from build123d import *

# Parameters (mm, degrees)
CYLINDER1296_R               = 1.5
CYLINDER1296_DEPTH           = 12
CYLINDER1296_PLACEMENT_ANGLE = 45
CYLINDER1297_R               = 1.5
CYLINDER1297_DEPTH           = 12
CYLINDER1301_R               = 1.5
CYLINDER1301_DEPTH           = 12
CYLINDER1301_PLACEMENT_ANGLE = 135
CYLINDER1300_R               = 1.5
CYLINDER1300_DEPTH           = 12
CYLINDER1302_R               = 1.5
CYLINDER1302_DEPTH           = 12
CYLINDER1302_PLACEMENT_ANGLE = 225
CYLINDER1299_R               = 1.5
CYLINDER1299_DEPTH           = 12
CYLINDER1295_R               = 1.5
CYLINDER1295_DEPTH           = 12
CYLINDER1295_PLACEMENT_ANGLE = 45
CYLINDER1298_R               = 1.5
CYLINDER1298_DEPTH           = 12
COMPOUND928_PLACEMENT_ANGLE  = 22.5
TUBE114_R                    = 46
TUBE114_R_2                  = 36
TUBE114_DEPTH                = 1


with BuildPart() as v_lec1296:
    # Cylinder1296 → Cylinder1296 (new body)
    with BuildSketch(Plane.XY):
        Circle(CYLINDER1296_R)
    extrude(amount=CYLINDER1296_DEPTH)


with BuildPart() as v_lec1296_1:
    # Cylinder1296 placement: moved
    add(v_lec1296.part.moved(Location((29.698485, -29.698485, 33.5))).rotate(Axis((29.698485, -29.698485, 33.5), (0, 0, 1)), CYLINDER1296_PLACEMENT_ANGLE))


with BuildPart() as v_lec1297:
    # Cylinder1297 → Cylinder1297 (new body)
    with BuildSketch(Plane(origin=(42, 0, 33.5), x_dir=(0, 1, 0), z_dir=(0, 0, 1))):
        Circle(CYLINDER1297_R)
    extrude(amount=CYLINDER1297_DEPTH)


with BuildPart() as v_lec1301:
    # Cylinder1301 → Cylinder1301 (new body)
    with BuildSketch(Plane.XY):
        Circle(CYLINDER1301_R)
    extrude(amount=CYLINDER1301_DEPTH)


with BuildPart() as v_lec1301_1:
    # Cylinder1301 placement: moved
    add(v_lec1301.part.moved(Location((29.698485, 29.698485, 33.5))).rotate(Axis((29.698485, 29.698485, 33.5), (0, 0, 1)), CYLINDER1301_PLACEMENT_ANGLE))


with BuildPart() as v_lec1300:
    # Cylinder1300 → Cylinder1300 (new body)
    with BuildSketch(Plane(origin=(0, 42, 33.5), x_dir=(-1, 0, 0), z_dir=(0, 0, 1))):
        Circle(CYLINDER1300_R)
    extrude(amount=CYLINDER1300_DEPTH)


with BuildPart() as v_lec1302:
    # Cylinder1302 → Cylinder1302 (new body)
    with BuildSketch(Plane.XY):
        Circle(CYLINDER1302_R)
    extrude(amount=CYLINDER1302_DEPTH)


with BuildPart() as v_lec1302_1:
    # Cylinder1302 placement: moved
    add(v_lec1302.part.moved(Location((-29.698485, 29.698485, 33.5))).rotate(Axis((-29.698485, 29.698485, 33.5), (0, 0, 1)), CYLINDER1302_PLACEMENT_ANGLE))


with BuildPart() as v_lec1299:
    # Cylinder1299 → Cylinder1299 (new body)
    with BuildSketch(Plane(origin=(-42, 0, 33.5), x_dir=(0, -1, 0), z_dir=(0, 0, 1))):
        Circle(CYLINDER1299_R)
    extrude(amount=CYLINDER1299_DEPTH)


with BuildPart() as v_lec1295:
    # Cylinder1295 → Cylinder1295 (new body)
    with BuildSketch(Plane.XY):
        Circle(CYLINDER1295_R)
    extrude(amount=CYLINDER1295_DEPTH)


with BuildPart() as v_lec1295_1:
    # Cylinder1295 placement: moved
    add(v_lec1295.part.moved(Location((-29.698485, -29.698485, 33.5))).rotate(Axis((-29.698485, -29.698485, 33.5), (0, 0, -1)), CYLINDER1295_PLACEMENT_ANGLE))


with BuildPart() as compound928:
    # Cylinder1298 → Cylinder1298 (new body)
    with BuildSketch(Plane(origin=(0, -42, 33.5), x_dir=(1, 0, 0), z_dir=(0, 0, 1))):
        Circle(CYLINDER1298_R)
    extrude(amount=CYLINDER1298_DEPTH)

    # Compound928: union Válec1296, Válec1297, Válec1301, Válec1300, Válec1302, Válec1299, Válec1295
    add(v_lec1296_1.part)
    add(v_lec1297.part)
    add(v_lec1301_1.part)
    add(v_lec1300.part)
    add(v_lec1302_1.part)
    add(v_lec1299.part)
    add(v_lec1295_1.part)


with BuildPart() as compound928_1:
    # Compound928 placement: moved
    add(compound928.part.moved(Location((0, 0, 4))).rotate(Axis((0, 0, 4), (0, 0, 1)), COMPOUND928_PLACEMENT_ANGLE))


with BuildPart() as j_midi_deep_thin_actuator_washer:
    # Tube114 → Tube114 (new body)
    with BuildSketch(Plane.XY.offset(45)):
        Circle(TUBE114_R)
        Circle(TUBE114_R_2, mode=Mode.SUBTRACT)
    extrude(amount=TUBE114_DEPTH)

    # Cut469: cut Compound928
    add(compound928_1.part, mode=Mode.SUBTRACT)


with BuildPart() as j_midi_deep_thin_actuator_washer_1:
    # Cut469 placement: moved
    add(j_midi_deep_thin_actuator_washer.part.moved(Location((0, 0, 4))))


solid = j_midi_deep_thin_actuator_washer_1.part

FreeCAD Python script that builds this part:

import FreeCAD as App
import Part
import Sketcher

V = App.Vector

doc = App.newDocument("Part")
body = doc.addObject("PartDesign::Body", "Body")

# Sketch on XY plane
sketch1 = doc.addObject("Sketcher::SketchObject", "Sketch")
body.addObject(sketch1)
sketch1.AttachmentSupport = (doc.XY_Plane, [""])
sketch1.MapMode = "FlatFace"
sketch1.addGeometry(Part.Circle(V(0, 0, 0), V(0, 0, 1), 1.5), False)
sketch1.addConstraint(Sketcher.Constraint("Coincident", 0, 3, -1, 1))
sketch1.addConstraint(Sketcher.Constraint("Diameter", 0, 3.0))
pad1 = doc.addObject("PartDesign::Pad", "Pad")
body.addObject(pad1)
pad1.Profile = sketch1
pad1.Length = 12
body2 = doc.addObject("PartDesign::Body", "Body001")
doc.recompute()

body.Placement = App.Placement(V(29.698485, -29.698485, 33.5), App.Rotation(V(0, 0, 1), 45))
boolean = doc.addObject("PartDesign::Boolean", "Boolean")
body2.addObject(boolean)
boolean.Type = "Fuse"
boolean.addObjects([body])
body3 = doc.addObject("PartDesign::Body", "Body002")

# Sketch on XY plane
sketch2 = doc.addObject("Sketcher::SketchObject", "Sketch001")
body3.addObject(sketch2)
sketch2.AttachmentSupport = (doc.getObject("XY_Plane002"), [""])
sketch2.MapMode = "FlatFace"
sketch2.AttachmentOffset = App.Placement(V(0, 0, 33.5), App.Rotation())
sketch2.addGeometry(Part.Circle(V(42, 0, 0), V(0, 0, 1), 1.5), False)
sketch2.addConstraint(Sketcher.Constraint("PointOnObject", 0, 3, -1))
sketch2.addConstraint(Sketcher.Constraint("Diameter", 0, 3.0))
sketch2.addConstraint(Sketcher.Constraint("DistanceX", -1, 1, 0, 3, 42.0))
pad2 = doc.addObject("PartDesign::Pad", "Pad001")
body3.addObject(pad2)
pad2.Profile = sketch2
pad2.Length = 12
body4 = doc.addObject("PartDesign::Body", "Body003")

# Sketch on XY plane
sketch3 = doc.addObject("Sketcher::SketchObject", "Sketch002")
body4.addObject(sketch3)
sketch3.AttachmentSupport = (doc.getObject("XY_Plane003"), [""])
sketch3.MapMode = "FlatFace"
sketch3.addGeometry(Part.Circle(V(0, 0, 0), V(0, 0, 1), 1.5), False)
sketch3.addConstraint(Sketcher.Constraint("Coincident", 0, 3, -1, 1))
sketch3.addConstraint(Sketcher.Constraint("Diameter", 0, 3.0))
pad3 = doc.addObject("PartDesign::Pad", "Pad002")
body4.addObject(pad3)
pad3.Profile = sketch3
pad3.Length = 12
body5 = doc.addObject("PartDesign::Body", "Body004")
doc.recompute()

body4.Placement = App.Placement(V(29.698485, 29.698485, 33.5), App.Rotation(V(0, 0, 1), 135))
boolean2 = doc.addObject("PartDesign::Boolean", "Boolean001")
body5.addObject(boolean2)
boolean2.Type = "Fuse"
boolean2.addObjects([body4])
body6 = doc.addObject("PartDesign::Body", "Body005")

# Sketch on XY plane
sketch4 = doc.addObject("Sketcher::SketchObject", "Sketch003")
body6.addObject(sketch4)
sketch4.AttachmentSupport = (doc.getObject("XY_Plane005"), [""])
sketch4.MapMode = "FlatFace"
sketch4.AttachmentOffset = App.Placement(V(0, 0, 33.5), App.Rotation())
sketch4.addGeometry(Part.Circle(V(0, 42, 0), V(0, 0, 1), 1.5), False)
sketch4.addConstraint(Sketcher.Constraint("PointOnObject", 0, 3, -2))
sketch4.addConstraint(Sketcher.Constraint("Diameter", 0, 3.0))
sketch4.addConstraint(Sketcher.Constraint("DistanceY", -1, 1, 0, 3, 42.0))
pad4 = doc.addObject("PartDesign::Pad", "Pad003")
body6.addObject(pad4)
pad4.Profile = sketch4
pad4.Length = 12
body7 = doc.addObject("PartDesign::Body", "Body006")

# Sketch on XY plane
sketch5 = doc.addObject("Sketcher::SketchObject", "Sketch004")
body7.addObject(sketch5)
sketch5.AttachmentSupport = (doc.getObject("XY_Plane006"), [""])
sketch5.MapMode = "FlatFace"
sketch5.addGeometry(Part.Circle(V(0, 0, 0), V(0, 0, 1), 1.5), False)
sketch5.addConstraint(Sketcher.Constraint("Coincident", 0, 3, -1, 1))
sketch5.addConstraint(Sketcher.Constraint("Diameter", 0, 3.0))
pad5 = doc.addObject("PartDesign::Pad", "Pad004")
body7.addObject(pad5)
pad5.Profile = sketch5
pad5.Length = 12
body8 = doc.addObject("PartDesign::Body", "Body007")
doc.recompute()

body7.Placement = App.Placement(V(-29.698485, 29.698485, 33.5), App.Rotation(V(0, 0, 1), 225))
boolean3 = doc.addObject("PartDesign::Boolean", "Boolean002")
body8.addObject(boolean3)
boolean3.Type = "Fuse"
boolean3.addObjects([body7])
body9 = doc.addObject("PartDesign::Body", "Body008")

# Sketch on XY plane
sketch6 = doc.addObject("Sketcher::SketchObject", "Sketch005")
body9.addObject(sketch6)
sketch6.AttachmentSupport = (doc.getObject("XY_Plane008"), [""])
sketch6.MapMode = "FlatFace"
sketch6.AttachmentOffset = App.Placement(V(0, 0, 33.5), App.Rotation())
sketch6.addGeometry(Part.Circle(V(-42, 0, 0), V(0, 0, 1), 1.5), False)
sketch6.addConstraint(Sketcher.Constraint("PointOnObject", 0, 3, -1))
sketch6.addConstraint(Sketcher.Constraint("Diameter", 0, 3.0))
sketch6.addConstraint(Sketcher.Constraint("DistanceX", 0, 3, -1, 1, 42.0))
pad6 = doc.addObject("PartDesign::Pad", "Pad005")
body9.addObject(pad6)
pad6.Profile = sketch6
pad6.Length = 12
body10 = doc.addObject("PartDesign::Body", "Body009")

# Sketch on XY plane
sketch7 = doc.addObject("Sketcher::SketchObject", "Sketch006")
body10.addObject(sketch7)
sketch7.AttachmentSupport = (doc.getObject("XY_Plane009"), [""])
sketch7.MapMode = "FlatFace"
sketch7.addGeometry(Part.Circle(V(0, 0, 0), V(0, 0, 1), 1.5), False)
sketch7.addConstraint(Sketcher.Constraint("Coincident", 0, 3, -1, 1))
sketch7.addConstraint(Sketcher.Constraint("Diameter", 0, 3.0))
pad7 = doc.addObject("PartDesign::Pad", "Pad006")
body10.addObject(pad7)
pad7.Profile = sketch7
pad7.Length = 12
body11 = doc.addObject("PartDesign::Body", "Body010")
doc.recompute()

body10.Placement = App.Placement(V(-29.698485, -29.698485, 33.5), App.Rotation(V(0, 0, -1), 45))
boolean4 = doc.addObject("PartDesign::Boolean", "Boolean003")
body11.addObject(boolean4)
boolean4.Type = "Fuse"
boolean4.addObjects([body10])
body12 = doc.addObject("PartDesign::Body", "Body011")
body12.AllowCompound = True

# Sketch on XY plane
sketch8 = doc.addObject("Sketcher::SketchObject", "Sketch007")
body12.addObject(sketch8)
sketch8.AttachmentSupport = (doc.getObject("XY_Plane011"), [""])
sketch8.MapMode = "FlatFace"
sketch8.AttachmentOffset = App.Placement(V(0, 0, 33.5), App.Rotation())
sketch8.addGeometry(Part.Circle(V(0, -42, 0), V(0, 0, 1), 1.5), False)
sketch8.addConstraint(Sketcher.Constraint("PointOnObject", 0, 3, -2))
sketch8.addConstraint(Sketcher.Constraint("Diameter", 0, 3.0))
sketch8.addConstraint(Sketcher.Constraint("DistanceY", 0, 3, -1, 1, 42.0))
pad8 = doc.addObject("PartDesign::Pad", "Pad007")
body12.addObject(pad8)
pad8.Profile = sketch8
pad8.Length = 12
doc.recompute()

boolean5 = doc.addObject("PartDesign::Boolean", "Boolean004")
body12.addObject(boolean5)
boolean5.Type = "Fuse"
boolean5.addObjects([body2])
doc.recompute()

boolean6 = doc.addObject("PartDesign::Boolean", "Boolean005")
body12.addObject(boolean6)
boolean6.Type = "Fuse"
boolean6.addObjects([body3])
doc.recompute()

boolean7 = doc.addObject("PartDesign::Boolean", "Boolean006")
body12.addObject(boolean7)
boolean7.Type = "Fuse"
boolean7.addObjects([body5])
doc.recompute()

boolean8 = doc.addObject("PartDesign::Boolean", "Boolean007")
body12.addObject(boolean8)
boolean8.Type = "Fuse"
boolean8.addObjects([body6])
doc.recompute()

boolean9 = doc.addObject("PartDesign::Boolean", "Boolean008")
body12.addObject(boolean9)
boolean9.Type = "Fuse"
boolean9.addObjects([body8])
doc.recompute()

boolean10 = doc.addObject("PartDesign::Boolean", "Boolean009")
body12.addObject(boolean10)
boolean10.Type = "Fuse"
boolean10.addObjects([body9])
doc.recompute()

boolean11 = doc.addObject("PartDesign::Boolean", "Boolean010")
body12.addObject(boolean11)
boolean11.Type = "Fuse"
boolean11.addObjects([body11])
body13 = doc.addObject("PartDesign::Body", "Body012")
body13.AllowCompound = True
doc.recompute()

body12.Placement = App.Placement(V(0, 0, 4), App.Rotation(V(0, 0, 1), 22.5))
boolean12 = doc.addObject("PartDesign::Boolean", "Boolean011")
body13.addObject(boolean12)
boolean12.Type = "Fuse"
boolean12.addObjects([body12])
body14 = doc.addObject("PartDesign::Body", "Body013")

# Sketch on XY plane
sketch9 = doc.addObject("Sketcher::SketchObject", "Sketch008")
body14.addObject(sketch9)
sketch9.AttachmentSupport = (doc.getObject("XY_Plane013"), [""])
sketch9.MapMode = "FlatFace"
sketch9.AttachmentOffset = App.Placement(V(0, 0, 45), App.Rotation())
sketch9.addGeometry(Part.Circle(V(0, 0, 0), V(0, 0, 1), 46), False)
sketch9.addGeometry(Part.Circle(V(0, 0, 0), V(0, 0, 1), 36), False)
sketch9.addConstraint(Sketcher.Constraint("Coincident", 0, 3, -1, 1))
sketch9.addConstraint(Sketcher.Constraint("Coincident", 1, 3, -1, 1))
sketch9.addConstraint(Sketcher.Constraint("Diameter", 0, 92.0))
sketch9.addConstraint(Sketcher.Constraint("Diameter", 1, 72.0))
pad9 = doc.addObject("PartDesign::Pad", "Pad008")
body14.addObject(pad9)
pad9.Profile = sketch9
pad9.Length = 1
doc.recompute()

boolean13 = doc.addObject("PartDesign::Boolean", "Boolean012")
body14.addObject(boolean13)
boolean13.Type = "Cut"
boolean13.addObjects([body13])
body15 = doc.addObject("PartDesign::Body", "Body014")
doc.recompute()

body14.Placement = App.Placement(V(0, 0, 4), App.Rotation(V(0, 0, 1), 0))
boolean14 = doc.addObject("PartDesign::Boolean", "Boolean013")
body15.addObject(boolean14)
boolean14.Type = "Fuse"
boolean14.addObjects([body14])

doc.recompute()
